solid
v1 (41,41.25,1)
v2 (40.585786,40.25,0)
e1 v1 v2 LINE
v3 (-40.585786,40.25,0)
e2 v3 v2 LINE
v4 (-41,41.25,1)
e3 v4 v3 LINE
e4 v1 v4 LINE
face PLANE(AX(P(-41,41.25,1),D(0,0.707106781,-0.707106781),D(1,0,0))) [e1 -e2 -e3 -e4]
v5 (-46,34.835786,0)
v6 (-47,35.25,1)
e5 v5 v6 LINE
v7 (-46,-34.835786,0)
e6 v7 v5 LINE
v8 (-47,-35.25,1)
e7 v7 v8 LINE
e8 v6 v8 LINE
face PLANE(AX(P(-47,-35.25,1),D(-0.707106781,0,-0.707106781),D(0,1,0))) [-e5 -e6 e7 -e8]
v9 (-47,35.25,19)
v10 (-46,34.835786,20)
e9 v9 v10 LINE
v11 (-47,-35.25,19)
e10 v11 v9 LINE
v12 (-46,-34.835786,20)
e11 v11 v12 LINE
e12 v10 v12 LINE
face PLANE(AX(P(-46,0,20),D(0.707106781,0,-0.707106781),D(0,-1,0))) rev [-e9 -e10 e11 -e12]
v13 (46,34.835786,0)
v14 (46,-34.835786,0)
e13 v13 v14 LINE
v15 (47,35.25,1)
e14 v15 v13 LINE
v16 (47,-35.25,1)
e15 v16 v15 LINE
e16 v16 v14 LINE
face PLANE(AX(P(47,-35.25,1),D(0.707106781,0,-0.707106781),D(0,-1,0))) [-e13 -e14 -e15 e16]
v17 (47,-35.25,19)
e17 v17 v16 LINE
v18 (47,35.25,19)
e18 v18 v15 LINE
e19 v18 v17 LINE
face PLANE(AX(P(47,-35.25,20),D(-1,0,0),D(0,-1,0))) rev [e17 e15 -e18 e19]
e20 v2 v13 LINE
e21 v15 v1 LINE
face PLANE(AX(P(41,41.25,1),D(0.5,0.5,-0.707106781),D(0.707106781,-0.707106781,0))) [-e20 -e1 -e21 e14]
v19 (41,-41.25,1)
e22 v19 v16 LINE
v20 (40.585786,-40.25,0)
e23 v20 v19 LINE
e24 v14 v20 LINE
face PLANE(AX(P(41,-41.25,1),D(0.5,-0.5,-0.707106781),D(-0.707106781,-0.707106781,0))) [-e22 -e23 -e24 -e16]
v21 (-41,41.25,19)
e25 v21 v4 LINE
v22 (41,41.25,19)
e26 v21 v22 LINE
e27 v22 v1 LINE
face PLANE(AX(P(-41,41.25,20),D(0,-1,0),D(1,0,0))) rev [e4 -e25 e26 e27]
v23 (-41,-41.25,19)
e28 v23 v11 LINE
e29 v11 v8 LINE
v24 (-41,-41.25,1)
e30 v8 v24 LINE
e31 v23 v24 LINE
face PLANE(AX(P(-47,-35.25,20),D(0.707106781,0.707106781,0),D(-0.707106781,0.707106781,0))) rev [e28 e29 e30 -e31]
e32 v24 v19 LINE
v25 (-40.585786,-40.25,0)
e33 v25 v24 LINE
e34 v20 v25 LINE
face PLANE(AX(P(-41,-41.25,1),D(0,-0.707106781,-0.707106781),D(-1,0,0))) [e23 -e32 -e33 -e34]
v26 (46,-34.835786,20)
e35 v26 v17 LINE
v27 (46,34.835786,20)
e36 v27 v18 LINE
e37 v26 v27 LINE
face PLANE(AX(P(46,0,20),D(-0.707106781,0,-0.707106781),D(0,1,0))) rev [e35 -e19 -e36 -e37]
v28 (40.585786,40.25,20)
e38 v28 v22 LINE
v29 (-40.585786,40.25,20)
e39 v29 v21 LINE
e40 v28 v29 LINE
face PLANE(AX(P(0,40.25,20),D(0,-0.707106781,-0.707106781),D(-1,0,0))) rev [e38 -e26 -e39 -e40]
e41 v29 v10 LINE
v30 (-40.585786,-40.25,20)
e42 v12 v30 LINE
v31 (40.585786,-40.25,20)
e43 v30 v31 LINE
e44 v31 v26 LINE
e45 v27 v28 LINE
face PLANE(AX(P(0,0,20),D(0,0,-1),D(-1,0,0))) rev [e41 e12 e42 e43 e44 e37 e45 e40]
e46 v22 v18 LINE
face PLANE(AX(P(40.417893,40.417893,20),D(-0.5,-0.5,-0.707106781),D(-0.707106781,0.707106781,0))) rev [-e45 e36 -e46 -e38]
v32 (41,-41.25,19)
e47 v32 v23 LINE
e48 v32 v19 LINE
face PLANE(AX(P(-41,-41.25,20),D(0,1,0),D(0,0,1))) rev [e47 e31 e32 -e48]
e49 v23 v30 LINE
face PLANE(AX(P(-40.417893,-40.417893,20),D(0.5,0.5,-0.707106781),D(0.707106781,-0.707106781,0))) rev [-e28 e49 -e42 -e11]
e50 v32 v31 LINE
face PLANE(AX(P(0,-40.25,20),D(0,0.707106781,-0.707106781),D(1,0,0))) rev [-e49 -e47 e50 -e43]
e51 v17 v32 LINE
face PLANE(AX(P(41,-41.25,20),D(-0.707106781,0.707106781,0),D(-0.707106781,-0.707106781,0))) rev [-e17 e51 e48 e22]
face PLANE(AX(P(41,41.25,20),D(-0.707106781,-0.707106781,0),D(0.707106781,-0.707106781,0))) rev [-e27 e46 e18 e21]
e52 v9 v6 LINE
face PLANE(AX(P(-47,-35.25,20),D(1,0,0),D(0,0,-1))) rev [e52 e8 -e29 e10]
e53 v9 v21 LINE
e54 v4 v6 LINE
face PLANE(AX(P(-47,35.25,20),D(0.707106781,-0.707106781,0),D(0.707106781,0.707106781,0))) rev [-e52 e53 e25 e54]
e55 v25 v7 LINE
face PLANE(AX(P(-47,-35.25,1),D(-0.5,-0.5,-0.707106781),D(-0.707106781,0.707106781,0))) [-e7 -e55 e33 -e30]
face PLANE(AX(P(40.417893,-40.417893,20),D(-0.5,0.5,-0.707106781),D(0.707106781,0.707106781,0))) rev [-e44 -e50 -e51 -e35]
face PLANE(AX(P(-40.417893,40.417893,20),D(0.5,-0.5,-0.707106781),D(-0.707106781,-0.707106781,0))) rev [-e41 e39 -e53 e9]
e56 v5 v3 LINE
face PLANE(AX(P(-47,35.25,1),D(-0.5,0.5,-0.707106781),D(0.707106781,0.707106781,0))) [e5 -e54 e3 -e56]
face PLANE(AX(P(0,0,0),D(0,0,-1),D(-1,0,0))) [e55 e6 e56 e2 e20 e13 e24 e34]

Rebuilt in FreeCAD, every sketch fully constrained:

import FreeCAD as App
import Part
import Sketcher


def edges_at(feature, points):
    """Names of the edges that pass closest to the given points."""
    edges = feature.Shape.Edges
    near = lambda p: min(range(len(edges)), key=lambda i: edges[i].distToShape(Part.Vertex(*p))[0])
    return sorted({f"Edge{near(p) + 1}" for p in points})

doc = App.newDocument("Part")
params = doc.addObject("Spreadsheet::Sheet", "Params")
for row, (alias, value) in enumerate([
    ("sketch1_width", "82 mm"),
    ("sketch1_height", "70.5 mm"),
    ("pad1_length", "20 mm"),
    ("chamfer_size", "1 mm"),
], start=1):
    params.set(f"A{row}", alias)
    params.set(f"B{row}", "=" + value)
    params.setAlias(f"B{row}", alias)

body = doc.addObject("PartDesign::Body", "Body")

sketch1 = body.newObject("Sketcher::SketchObject", "Sketch")
sketch1.AttachmentSupport = (doc.getObject("XY_Plane"), [""])
sketch1.MapMode = "FlatFace"
sketch1.addGeometry(Part.LineSegment(App.Vector(-41, 41.25, 0), App.Vector(-47, 35.25, 0)), False)
sketch1.addGeometry(Part.LineSegment(App.Vector(-47, 35.25, 0), App.Vector(-47, -35.25, 0)), False)
sketch1.addGeometry(Part.LineSegment(App.Vector(-47, -35.25, 0), App.Vector(-41, -41.25, 0)), False)
sketch1.addGeometry(Part.LineSegment(App.Vector(-41, -41.25, 0), App.Vector(41, -41.25, 0)), False)
sketch1.addGeometry(Part.LineSegment(App.Vector(41, -41.25, 0), App.Vector(47, -35.25, 0)), False)
sketch1.addGeometry(Part.LineSegment(App.Vector(47, -35.25, 0), App.Vector(47, 35.25, 0)), False)
sketch1.addGeometry(Part.LineSegment(App.Vector(47, 35.25, 0), App.Vector(41, 41.25, 0)), False)
sketch1.addGeometry(Part.LineSegment(App.Vector(41, 41.25, 0), App.Vector(-41, 41.25, 0)), False)
sketch1.addConstraint(Sketcher.Constraint("Coincident", 0, 2, 1, 1))
sketch1.addConstraint(Sketcher.Constraint("Coincident", 1, 2, 2, 1))
sketch1.addConstraint(Sketcher.Constraint("Coincident", 2, 2, 3, 1))
sketch1.addConstraint(Sketcher.Constraint("Coincident", 3, 2, 4, 1))
sketch1.addConstraint(Sketcher.Constraint("Coincident", 4, 2, 5, 1))
sketch1.addConstraint(Sketcher.Constraint("Coincident", 5, 2, 6, 1))
sketch1.addConstraint(Sketcher.Constraint("Coincident", 6, 2, 7, 1))
sketch1.addConstraint(Sketcher.Constraint("Coincident", 7, 2, 0, 1))
sketch1.addConstraint(Sketcher.Constraint("Vertical", 1))
sketch1.addConstraint(Sketcher.Constraint("Horizontal", 3))
sketch1.addConstraint(Sketcher.Constraint("Vertical", 5))
sketch1.addConstraint(Sketcher.Constraint("Horizontal", 7))
sketch1.addConstraint(Sketcher.Constraint("Symmetric", 0, 2, 4, 2, -1, 1))
sketch1.addConstraint(Sketcher.Constraint("Symmetric", 2, 2, 6, 2, -1, 1))
sketch1.addConstraint(Sketcher.Constraint("Perpendicular", 0, 2))
sketch1.addConstraint(Sketcher.Constraint("Perpendicular", 2, 4))
sketch1.addConstraint(Sketcher.Constraint("Perpendicular", 4, 6))
sketch1.addConstraint(Sketcher.Constraint("Horizontal", 1, 2, 4, 2))
sketch1.addConstraint(Sketcher.Constraint("Vertical", 3, 2, 6, 2))
sketch1.addConstraint(Sketcher.Constraint("DistanceX", 3, 1, 3, 2, 82.0))
sketch1.addConstraint(Sketcher.Constraint("DistanceY", 1, 2, 1, 1, 70.5))
sketch1.addConstraint(Sketcher.Constraint("DistanceX", 0, 2, -1, 1, 47.0))
sketch1.setExpression("Constraints[19]", "Params.sketch1_width")
sketch1.setExpression("Constraints[20]", "Params.sketch1_height")
pad1 = body.newObject("PartDesign::Pad", "Pad")
pad1.Profile = sketch1
pad1.setExpression("Length", "Params.pad1_length")
doc.recompute()

chamfer = body.newObject("PartDesign::Chamfer", "Chamfer")
chamfer.Base = (pad1, edges_at(pad1, [
    (44, -38.25, 0),
    (0, -41.25, 0),
    (-44, -38.25, 0),
    (-47, 0, 0),
    (0, -41.25, 20),
    (44, -38.25, 20),
    (47, 0, 20),
    (44, 38.25, 20),
    (0, 41.25, 20),
    (-44, 38.25, 20),
    (-47, 0, 20),
    (-44, 38.25, 0),
    (-44, -38.25, 20),
    (0, 41.25, 0),
    (44, 38.25, 0),
    (47, 0, 0),
]))
chamfer.setExpression("Size", "Params.chamfer_size")

doc.recompute()
